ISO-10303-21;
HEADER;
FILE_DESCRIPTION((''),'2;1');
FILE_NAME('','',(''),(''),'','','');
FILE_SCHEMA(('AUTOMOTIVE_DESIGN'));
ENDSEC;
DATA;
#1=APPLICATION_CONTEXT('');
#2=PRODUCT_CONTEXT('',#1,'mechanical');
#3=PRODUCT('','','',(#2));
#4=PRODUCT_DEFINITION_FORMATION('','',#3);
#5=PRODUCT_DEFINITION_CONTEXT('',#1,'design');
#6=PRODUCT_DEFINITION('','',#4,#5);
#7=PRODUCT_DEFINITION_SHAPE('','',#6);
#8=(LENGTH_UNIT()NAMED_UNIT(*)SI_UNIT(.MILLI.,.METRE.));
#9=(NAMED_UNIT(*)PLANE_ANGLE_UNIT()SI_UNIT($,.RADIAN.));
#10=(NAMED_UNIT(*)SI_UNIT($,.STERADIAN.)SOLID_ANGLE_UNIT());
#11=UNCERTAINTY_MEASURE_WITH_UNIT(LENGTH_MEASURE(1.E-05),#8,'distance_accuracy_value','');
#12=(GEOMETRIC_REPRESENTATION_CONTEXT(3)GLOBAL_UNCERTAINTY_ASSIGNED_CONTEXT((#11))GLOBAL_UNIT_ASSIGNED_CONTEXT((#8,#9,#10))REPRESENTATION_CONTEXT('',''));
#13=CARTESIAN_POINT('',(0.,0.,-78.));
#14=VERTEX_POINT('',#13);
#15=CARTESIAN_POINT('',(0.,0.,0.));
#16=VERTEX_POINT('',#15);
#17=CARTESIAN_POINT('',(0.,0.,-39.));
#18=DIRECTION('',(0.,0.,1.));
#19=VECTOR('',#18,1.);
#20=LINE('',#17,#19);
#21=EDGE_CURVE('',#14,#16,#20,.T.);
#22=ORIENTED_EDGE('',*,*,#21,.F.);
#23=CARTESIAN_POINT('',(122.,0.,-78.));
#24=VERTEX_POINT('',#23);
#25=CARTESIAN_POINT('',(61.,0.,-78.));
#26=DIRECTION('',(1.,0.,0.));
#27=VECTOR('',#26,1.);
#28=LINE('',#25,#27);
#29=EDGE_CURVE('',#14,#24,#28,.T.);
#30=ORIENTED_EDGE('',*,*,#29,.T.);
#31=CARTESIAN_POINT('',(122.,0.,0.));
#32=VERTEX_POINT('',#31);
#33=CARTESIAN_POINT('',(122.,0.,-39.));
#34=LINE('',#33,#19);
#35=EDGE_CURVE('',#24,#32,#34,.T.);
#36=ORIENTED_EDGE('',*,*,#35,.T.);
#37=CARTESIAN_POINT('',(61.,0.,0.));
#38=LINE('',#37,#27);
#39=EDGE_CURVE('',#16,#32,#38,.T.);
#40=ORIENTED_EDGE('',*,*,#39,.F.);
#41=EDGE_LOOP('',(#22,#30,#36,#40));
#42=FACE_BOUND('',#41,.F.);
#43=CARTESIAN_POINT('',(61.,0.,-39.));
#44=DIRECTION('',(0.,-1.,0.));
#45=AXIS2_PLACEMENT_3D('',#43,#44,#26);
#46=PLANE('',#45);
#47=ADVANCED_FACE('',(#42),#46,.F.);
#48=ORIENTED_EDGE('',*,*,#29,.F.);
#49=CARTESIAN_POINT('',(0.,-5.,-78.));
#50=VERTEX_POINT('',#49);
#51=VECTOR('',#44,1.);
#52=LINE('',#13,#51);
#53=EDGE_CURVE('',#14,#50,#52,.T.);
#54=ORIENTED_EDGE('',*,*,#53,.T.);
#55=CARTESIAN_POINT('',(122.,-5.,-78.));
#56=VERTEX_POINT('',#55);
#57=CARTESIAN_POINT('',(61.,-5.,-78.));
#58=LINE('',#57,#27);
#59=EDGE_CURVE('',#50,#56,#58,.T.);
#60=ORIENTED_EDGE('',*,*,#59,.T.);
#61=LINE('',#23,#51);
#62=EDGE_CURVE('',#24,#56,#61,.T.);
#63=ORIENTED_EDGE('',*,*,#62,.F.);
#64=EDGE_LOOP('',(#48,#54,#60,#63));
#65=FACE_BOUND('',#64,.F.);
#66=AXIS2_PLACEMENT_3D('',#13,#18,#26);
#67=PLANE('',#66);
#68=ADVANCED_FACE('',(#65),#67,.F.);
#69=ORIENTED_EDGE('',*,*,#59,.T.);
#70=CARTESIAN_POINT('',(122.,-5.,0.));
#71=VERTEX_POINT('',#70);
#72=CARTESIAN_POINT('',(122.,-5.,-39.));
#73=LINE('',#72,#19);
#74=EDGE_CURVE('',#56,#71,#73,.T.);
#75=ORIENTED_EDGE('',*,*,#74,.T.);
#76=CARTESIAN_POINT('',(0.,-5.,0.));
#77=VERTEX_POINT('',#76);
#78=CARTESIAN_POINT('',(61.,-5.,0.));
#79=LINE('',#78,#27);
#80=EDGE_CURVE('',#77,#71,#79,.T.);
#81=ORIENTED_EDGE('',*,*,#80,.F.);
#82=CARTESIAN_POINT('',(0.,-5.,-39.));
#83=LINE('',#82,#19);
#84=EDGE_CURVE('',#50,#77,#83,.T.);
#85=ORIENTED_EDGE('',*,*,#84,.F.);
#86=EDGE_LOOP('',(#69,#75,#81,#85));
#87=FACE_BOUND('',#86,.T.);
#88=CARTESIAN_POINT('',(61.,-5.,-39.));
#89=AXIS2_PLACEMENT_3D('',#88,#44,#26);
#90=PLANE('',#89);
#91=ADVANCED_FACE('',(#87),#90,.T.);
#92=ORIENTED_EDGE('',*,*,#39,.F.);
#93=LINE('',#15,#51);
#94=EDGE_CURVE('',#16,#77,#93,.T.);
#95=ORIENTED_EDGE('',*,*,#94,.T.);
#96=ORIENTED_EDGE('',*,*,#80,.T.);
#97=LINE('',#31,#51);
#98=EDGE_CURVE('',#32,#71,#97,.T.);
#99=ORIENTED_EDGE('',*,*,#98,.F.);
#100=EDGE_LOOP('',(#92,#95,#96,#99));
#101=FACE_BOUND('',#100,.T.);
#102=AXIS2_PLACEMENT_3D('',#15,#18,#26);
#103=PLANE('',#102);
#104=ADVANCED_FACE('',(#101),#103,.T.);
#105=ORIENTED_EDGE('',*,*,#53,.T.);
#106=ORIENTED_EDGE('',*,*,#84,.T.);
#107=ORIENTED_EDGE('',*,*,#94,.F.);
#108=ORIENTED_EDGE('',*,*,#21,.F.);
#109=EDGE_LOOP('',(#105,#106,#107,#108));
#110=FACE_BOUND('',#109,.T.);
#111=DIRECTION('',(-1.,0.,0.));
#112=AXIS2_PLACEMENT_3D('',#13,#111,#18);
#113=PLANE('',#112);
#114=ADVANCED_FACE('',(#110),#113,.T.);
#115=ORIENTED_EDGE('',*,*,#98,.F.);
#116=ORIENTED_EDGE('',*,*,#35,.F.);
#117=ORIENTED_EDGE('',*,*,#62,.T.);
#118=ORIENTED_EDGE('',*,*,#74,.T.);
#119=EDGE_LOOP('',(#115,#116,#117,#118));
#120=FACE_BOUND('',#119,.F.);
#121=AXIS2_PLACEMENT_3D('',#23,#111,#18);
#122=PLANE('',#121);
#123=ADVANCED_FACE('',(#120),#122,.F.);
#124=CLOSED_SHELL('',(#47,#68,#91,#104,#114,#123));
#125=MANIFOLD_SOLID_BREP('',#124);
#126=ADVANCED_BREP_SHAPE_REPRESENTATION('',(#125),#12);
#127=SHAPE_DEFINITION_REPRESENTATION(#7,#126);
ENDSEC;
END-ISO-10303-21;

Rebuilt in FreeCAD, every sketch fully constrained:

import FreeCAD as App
import Part
import Sketcher
from FreeCAD import Vector
Q = App.Units.Quantity

doc = App.newDocument("Part")
body = doc.addObject("PartDesign::Body", "Body")

# Sketch on XZ plane
sketch1 = doc.addObject("Sketcher::SketchObject", "Sketch")
body.addObject(sketch1)
sketch1.AttachmentSupport = (doc.XZ_Plane, [""])
sketch1.MapMode = "FlatFace"
sketch1.addGeometry([
    Part.LineSegment(Vector(0, 0, 0), Vector(0, -78, 0)),
    Part.LineSegment(Vector(0, -78, 0), Vector(122, -78, 0)),
    Part.LineSegment(Vector(122, -78, 0), Vector(122, 0, 0)),
    Part.LineSegment(Vector(122, 0, 0), Vector(0, 0, 0)),
], False)
sketch1.addConstraint([
    Sketcher.Constraint("Coincident", 0, 2, 1, 1),
    Sketcher.Constraint("Coincident", 1, 2, 2, 1),
    Sketcher.Constraint("Coincident", 2, 2, 3, 1),
    Sketcher.Constraint("Coincident", 3, 2, 0, 1),
    Sketcher.Constraint("Vertical", 0),
    Sketcher.Constraint("Horizontal", 1),
    Sketcher.Constraint("Vertical", 2),
    Sketcher.Constraint("Horizontal", 3),
    Sketcher.Constraint("Coincident", 3, 2, -1, 1),
    Sketcher.Constraint("DistanceX", 1, 1, 1, 2, Q("122 mm")),
    Sketcher.Constraint("DistanceY", 0, 2, 0, 1, Q("78 mm")),
])
pad1 = doc.addObject("PartDesign::Pad", "Pad")
body.addObject(pad1)
pad1.Profile = sketch1
pad1.Length = 5

doc.recompute()
